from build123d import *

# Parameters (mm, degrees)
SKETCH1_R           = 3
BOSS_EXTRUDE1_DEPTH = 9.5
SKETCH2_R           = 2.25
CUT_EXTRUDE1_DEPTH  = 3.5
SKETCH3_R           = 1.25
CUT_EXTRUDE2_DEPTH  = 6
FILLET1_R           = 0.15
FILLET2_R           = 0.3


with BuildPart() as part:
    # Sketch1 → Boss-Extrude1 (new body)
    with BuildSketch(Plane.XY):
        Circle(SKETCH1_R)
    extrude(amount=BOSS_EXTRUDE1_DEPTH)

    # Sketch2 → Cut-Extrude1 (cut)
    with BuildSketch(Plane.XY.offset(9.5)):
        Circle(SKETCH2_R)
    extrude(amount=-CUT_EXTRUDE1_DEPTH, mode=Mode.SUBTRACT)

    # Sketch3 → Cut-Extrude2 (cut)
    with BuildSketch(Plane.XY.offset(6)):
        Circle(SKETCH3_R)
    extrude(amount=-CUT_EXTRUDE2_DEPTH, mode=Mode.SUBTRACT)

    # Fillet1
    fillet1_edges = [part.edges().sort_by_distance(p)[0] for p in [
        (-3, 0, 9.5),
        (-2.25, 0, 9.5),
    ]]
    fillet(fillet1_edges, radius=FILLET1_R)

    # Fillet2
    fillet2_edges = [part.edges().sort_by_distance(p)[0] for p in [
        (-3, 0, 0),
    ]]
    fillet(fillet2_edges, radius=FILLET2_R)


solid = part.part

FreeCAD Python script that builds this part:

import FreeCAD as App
import Part
import Sketcher


def edges_at(feature, points):
    """Names of the edges that pass closest to the given points."""
    edges = feature.Shape.Edges
    near = lambda p: min(range(len(edges)), key=lambda i: edges[i].distToShape(Part.Vertex(*p))[0])
    return sorted({f"Edge{near(p) + 1}" for p in points})

doc = App.newDocument("Part")
body = doc.addObject("PartDesign::Body", "Body")

# Sketch on XY plane
sketch1 = body.newObject("Sketcher::SketchObject", "Sketch")
sketch1.AttachmentSupport = (doc.getObject("XY_Plane"), [""])
sketch1.MapMode = "FlatFace"
sketch1.addGeometry(Part.Circle(App.Vector(0, 0, 0), App.Vector(0, 0, 1), 3), False)
sketch1.addConstraint(Sketcher.Constraint("Coincident", 0, 3, -1, 1))
sketch1.addConstraint(Sketcher.Constraint("Diameter", 0, 6.0))
pad1 = body.newObject("PartDesign::Pad", "Pad")
pad1.Profile = sketch1
pad1.Length = 9.5

# Sketch on XY plane
sketch2 = body.newObject("Sketcher::SketchObject", "Sketch001")
sketch2.AttachmentSupport = (doc.getObject("XY_Plane"), [""])
sketch2.MapMode = "FlatFace"
sketch2.AttachmentOffset = App.Placement(App.Vector(0, 0, 9.5), App.Rotation())
sketch2.addGeometry(Part.Circle(App.Vector(0, 0, 0), App.Vector(0, 0, 1), 2.2), False)
sketch2.addConstraint(Sketcher.Constraint("Coincident", 0, 3, -1, 1))
sketch2.addConstraint(Sketcher.Constraint("Diameter", 0, 4.5))
pocket1 = body.newObject("PartDesign::Pocket", "Pocket")
pocket1.Profile = sketch2
pocket1.Length = 3.5

# Sketch on XY plane
sketch3 = body.newObject("Sketcher::SketchObject", "Sketch002")
sketch3.AttachmentSupport = (doc.getObject("XY_Plane"), [""])
sketch3.MapMode = "FlatFace"
sketch3.AttachmentOffset = App.Placement(App.Vector(0, 0, 6), App.Rotation())
sketch3.addGeometry(Part.Circle(App.Vector(0, 0, 0), App.Vector(0, 0, 1), 1.2), False)
sketch3.addConstraint(Sketcher.Constraint("Coincident", 0, 3, -1, 1))
sketch3.addConstraint(Sketcher.Constraint("Diameter", 0, 2.5))
pocket2 = body.newObject("PartDesign::Pocket", "Pocket001")
pocket2.Profile = sketch3
pocket2.Length = 6
doc.recompute()

fillet = body.newObject("PartDesign::Fillet", "Fillet")
fillet.Base = (pocket2, edges_at(pocket2, [(-3, 0, 9.5), (-2.25, 0, 9.5)]))
fillet.Radius = 0.15
doc.recompute()

fillet2 = body.newObject("PartDesign::Fillet", "Fillet001")
fillet2.Base = (fillet, edges_at(fillet, [(-3, 0, 0)]))
fillet2.Radius = 0.3

doc.recompute()
